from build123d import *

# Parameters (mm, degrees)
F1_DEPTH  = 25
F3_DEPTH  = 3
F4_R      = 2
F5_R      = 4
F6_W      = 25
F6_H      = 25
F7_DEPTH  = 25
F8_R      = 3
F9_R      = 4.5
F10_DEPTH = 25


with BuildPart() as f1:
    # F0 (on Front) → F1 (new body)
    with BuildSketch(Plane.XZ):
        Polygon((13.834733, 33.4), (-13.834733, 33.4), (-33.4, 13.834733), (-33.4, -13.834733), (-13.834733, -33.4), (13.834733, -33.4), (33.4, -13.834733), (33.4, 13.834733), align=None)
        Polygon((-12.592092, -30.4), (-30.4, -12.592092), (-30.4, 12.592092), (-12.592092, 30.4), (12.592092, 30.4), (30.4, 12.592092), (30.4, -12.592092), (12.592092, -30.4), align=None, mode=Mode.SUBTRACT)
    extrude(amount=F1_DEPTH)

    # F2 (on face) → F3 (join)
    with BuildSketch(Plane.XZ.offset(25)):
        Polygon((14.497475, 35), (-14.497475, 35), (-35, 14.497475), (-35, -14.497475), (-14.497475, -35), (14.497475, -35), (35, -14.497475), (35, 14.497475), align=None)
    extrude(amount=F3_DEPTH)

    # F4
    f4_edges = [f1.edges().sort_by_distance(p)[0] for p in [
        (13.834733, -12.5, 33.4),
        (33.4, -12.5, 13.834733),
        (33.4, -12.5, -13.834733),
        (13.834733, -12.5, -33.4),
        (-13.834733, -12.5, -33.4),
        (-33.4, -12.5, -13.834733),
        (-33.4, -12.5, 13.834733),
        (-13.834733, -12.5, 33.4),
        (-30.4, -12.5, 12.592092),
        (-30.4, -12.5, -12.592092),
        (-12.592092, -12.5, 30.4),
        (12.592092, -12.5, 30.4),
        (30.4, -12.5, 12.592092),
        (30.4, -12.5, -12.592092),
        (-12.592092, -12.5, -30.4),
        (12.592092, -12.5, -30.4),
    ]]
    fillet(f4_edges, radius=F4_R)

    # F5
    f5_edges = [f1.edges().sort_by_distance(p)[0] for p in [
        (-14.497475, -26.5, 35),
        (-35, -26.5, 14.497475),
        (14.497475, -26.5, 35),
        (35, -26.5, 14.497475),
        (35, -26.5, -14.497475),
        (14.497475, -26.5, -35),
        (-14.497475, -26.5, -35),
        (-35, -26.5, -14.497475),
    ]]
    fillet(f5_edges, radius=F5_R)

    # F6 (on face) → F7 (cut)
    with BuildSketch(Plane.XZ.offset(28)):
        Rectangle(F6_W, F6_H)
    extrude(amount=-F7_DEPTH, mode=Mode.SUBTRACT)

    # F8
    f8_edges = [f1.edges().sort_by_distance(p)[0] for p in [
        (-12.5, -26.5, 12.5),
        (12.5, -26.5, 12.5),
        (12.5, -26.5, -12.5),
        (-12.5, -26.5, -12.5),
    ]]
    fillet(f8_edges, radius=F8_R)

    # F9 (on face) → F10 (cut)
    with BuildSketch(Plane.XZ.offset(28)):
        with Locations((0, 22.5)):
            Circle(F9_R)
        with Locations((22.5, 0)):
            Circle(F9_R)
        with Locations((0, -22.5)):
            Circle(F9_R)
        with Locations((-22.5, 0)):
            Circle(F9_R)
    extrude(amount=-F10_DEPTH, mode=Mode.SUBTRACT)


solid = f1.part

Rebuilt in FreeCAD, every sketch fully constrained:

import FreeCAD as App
import Part
import Sketcher
Q = App.Units.Quantity


def edges_at(feature, points):
    """Names of the edges that pass closest to the given points."""
    edges = feature.Shape.Edges
    near = lambda p: min(range(len(edges)), key=lambda i: edges[i].distToShape(Part.Vertex(*p))[0])
    return sorted({f"Edge{near(p) + 1}" for p in points})

doc = App.newDocument("Part")
params = doc.addObject("Spreadsheet::Sheet", "Params")
for row, (alias, value) in enumerate([
    ("pad1_length", "25 mm"),
    ("pad2_length", "3 mm"),
    ("fillet_radius", "2 mm"),
    ("fillet2_radius", "4 mm"),
    ("sketch3_width", "25 mm"),
    ("pocket1_length", "25 mm"),
    ("fillet3_radius", "3 mm"),
    ("sketch4_diameter", "9 mm"),
    ("pocket2_length", "25 mm"),
], start=1):
    params.set(f"A{row}", alias)
    params.set(f"B{row}", "=" + value)
    params.setAlias(f"B{row}", alias)

body = doc.addObject("PartDesign::Body", "Body")

# Sketch on XZ plane
sketch1 = doc.addObject("Sketcher::SketchObject", "Sketch")
body.addObject(sketch1)
sketch1.AttachmentSupport = (doc.XZ_Plane, [""])
sketch1.MapMode = "FlatFace"
sketch1.addGeometry(Part.LineSegment(App.Vector(14, 33, 0), App.Vector(-14, 33, 0)), False)
sketch1.addGeometry(Part.LineSegment(App.Vector(-14, 33, 0), App.Vector(-33, 14, 0)), False)
sketch1.addGeometry(Part.LineSegment(App.Vector(-33, 14, 0), App.Vector(-33, -14, 0)), False)
sketch1.addGeometry(Part.LineSegment(App.Vector(-33, -14, 0), App.Vector(-14, -33, 0)), False)
sketch1.addGeometry(Part.LineSegment(App.Vector(-14, -33, 0), App.Vector(14, -33, 0)), False)
sketch1.addGeometry(Part.LineSegment(App.Vector(14, -33, 0), App.Vector(33, -14, 0)), False)
sketch1.addGeometry(Part.LineSegment(App.Vector(33, -14, 0), App.Vector(33, 14, 0)), False)
sketch1.addGeometry(Part.LineSegment(App.Vector(33, 14, 0), App.Vector(14, 33, 0)), False)
sketch1.addGeometry(Part.LineSegment(App.Vector(13, -30, 0), App.Vector(-13, -30, 0)), False)
sketch1.addGeometry(Part.LineSegment(App.Vector(-13, -30, 0), App.Vector(-30, -13, 0)), False)
sketch1.addGeometry(Part.LineSegment(App.Vector(-30, -13, 0), App.Vector(-30, 13, 0)), False)
sketch1.addGeometry(Part.LineSegment(App.Vector(-30, 13, 0), App.Vector(-13, 30, 0)), False)
sketch1.addGeometry(Part.LineSegment(App.Vector(-13, 30, 0), App.Vector(13, 30, 0)), False)
sketch1.addGeometry(Part.LineSegment(App.Vector(13, 30, 0), App.Vector(30, 13, 0)), False)
sketch1.addGeometry(Part.LineSegment(App.Vector(30, 13, 0), App.Vector(30, -13, 0)), False)
sketch1.addGeometry(Part.LineSegment(App.Vector(30, -13, 0), App.Vector(13, -30, 0)), False)
sketch1.addConstraint(Sketcher.Constraint("Coincident", 0, 2, 1, 1))
sketch1.addConstraint(Sketcher.Constraint("Coincident", 1, 2, 2, 1))
sketch1.addConstraint(Sketcher.Constraint("Coincident", 2, 2, 3, 1))
sketch1.addConstraint(Sketcher.Constraint("Coincident", 3, 2, 4, 1))
sketch1.addConstraint(Sketcher.Constraint("Coincident", 4, 2, 5, 1))
sketch1.addConstraint(Sketcher.Constraint("Coincident", 5, 2, 6, 1))
sketch1.addConstraint(Sketcher.Constraint("Coincident", 6, 2, 7, 1))
sketch1.addConstraint(Sketcher.Constraint("Coincident", 7, 2, 0, 1))
sketch1.addConstraint(Sketcher.Constraint("Coincident", 8, 2, 9, 1))
sketch1.addConstraint(Sketcher.Constraint("Coincident", 9, 2, 10, 1))
sketch1.addConstraint(Sketcher.Constraint("Coincident", 10, 2, 11, 1))
sketch1.addConstraint(Sketcher.Constraint("Coincident", 11, 2, 12, 1))
sketch1.addConstraint(Sketcher.Constraint("Coincident", 12, 2, 13, 1))
sketch1.addConstraint(Sketcher.Constraint("Coincident", 13, 2, 14, 1))
sketch1.addConstraint(Sketcher.Constraint("Coincident", 14, 2, 15, 1))
sketch1.addConstraint(Sketcher.Constraint("Coincident", 15, 2, 8, 1))
sketch1.addConstraint(Sketcher.Constraint("Horizontal", 0))
sketch1.addConstraint(Sketcher.Constraint("Vertical", 2))
sketch1.addConstraint(Sketcher.Constraint("Horizontal", 4))
sketch1.addConstraint(Sketcher.Constraint("Vertical", 6))
sketch1.addConstraint(Sketcher.Constraint("Horizontal", 8))
sketch1.addConstraint(Sketcher.Constraint("Vertical", 10))
sketch1.addConstraint(Sketcher.Constraint("Horizontal", 12))
sketch1.addConstraint(Sketcher.Constraint("Vertical", 14))
sketch1.addConstraint(Sketcher.Constraint("Symmetric", 0, 2, 4, 2, -1, 1))
sketch1.addConstraint(Sketcher.Constraint("Symmetric", 1, 2, 5, 2, -1, 1))
sketch1.addConstraint(Sketcher.Constraint("Symmetric", 8, 2, 12, 2, -1, 1))
sketch1.addConstraint(Sketcher.Constraint("Symmetric", 9, 2, 13, 2, -1, 1))
sketch1.addConstraint(Sketcher.Constraint("Perpendicular", 1, 3))
sketch1.addConstraint(Sketcher.Constraint("Perpendicular", 5, 7))
sketch1.addConstraint(Sketcher.Constraint("Parallel", 7, 9))
sketch1.addConstraint(Sketcher.Constraint("Perpendicular", 9, 11))
sketch1.addConstraint(Sketcher.Constraint("Perpendicular", 13, 15))
sketch1.addConstraint(Sketcher.Constraint("Horizontal", 2, 2, 5, 2))
sketch1.addConstraint(Sketcher.Constraint("Horizontal", 1, 2, 6, 2))
sketch1.addConstraint(Sketcher.Constraint("Horizontal", 10, 2, 13, 2))
sketch1.addConstraint(Sketcher.Constraint("Horizontal", 9, 2, 14, 2))
sketch1.addConstraint(Sketcher.Constraint("Vertical", 0, 2, 3, 2))
sketch1.addConstraint(Sketcher.Constraint("Equal", 4, 2))
sketch1.addConstraint(Sketcher.Constraint("Equal", 12, 10))
sketch1.addConstraint(Sketcher.Constraint("DistanceY", 3, 2, 8, 2, Q("3 mm")))
sketch1.addConstraint(Sketcher.Constraint("DistanceY", -1, 1, 0, 2, Q("33.4 mm")))
sketch1.addConstraint(Sketcher.Constraint("DistanceX", 0, 2, 0, 1, Q("27.669466 mm")))
sketch1.addConstraint(Sketcher.Constraint("DistanceX", 8, 2, 8, 1, Q("25.184184 mm")))
pad1 = doc.addObject("PartDesign::Pad", "Pad")
body.addObject(pad1)
pad1.Profile = sketch1
pad1.setExpression("Length", "Params.pad1_length")

# Sketch on XZ plane
sketch2 = doc.addObject("Sketcher::SketchObject", "Sketch001")
body.addObject(sketch2)
sketch2.AttachmentSupport = (doc.XZ_Plane, [""])
sketch2.MapMode = "FlatFace"
sketch2.AttachmentOffset = App.Placement(App.Vector(0, 0, 25), App.Rotation())
sketch2.addGeometry(Part.LineSegment(App.Vector(14, 35, 0), App.Vector(-14, 35, 0)), False)
sketch2.addGeometry(Part.LineSegment(App.Vector(-14, 35, 0), App.Vector(-35, 14, 0)), False)
sketch2.addGeometry(Part.LineSegment(App.Vector(-35, 14, 0), App.Vector(-35, -14, 0)), False)
sketch2.addGeometry(Part.LineSegment(App.Vector(-35, -14, 0), App.Vector(-14, -35, 0)), False)
sketch2.addGeometry(Part.LineSegment(App.Vector(-14, -35, 0), App.Vector(14, -35, 0)), False)
sketch2.addGeometry(Part.LineSegment(App.Vector(14, -35, 0), App.Vector(35, -14, 0)), False)
sketch2.addGeometry(Part.LineSegment(App.Vector(35, -14, 0), App.Vector(35, 14, 0)), False)
sketch2.addGeometry(Part.LineSegment(App.Vector(35, 14, 0), App.Vector(14, 35, 0)), False)
sketch2.addConstraint(Sketcher.Constraint("Coincident", 0, 2, 1, 1))
sketch2.addConstraint(Sketcher.Constraint("Coincident", 1, 2, 2, 1))
sketch2.addConstraint(Sketcher.Constraint("Coincident", 2, 2, 3, 1))
sketch2.addConstraint(Sketcher.Constraint("Coincident", 3, 2, 4, 1))
sketch2.addConstraint(Sketcher.Constraint("Coincident", 4, 2, 5, 1))
sketch2.addConstraint(Sketcher.Constraint("Coincident", 5, 2, 6, 1))
sketch2.addConstraint(Sketcher.Constraint("Coincident", 6, 2, 7, 1))
sketch2.addConstraint(Sketcher.Constraint("Coincident", 7, 2, 0, 1))
sketch2.addConstraint(Sketcher.Constraint("Horizontal", 0))
sketch2.addConstraint(Sketcher.Constraint("Vertical", 2))
sketch2.addConstraint(Sketcher.Constraint("Horizontal", 4))
sketch2.addConstraint(Sketcher.Constraint("Vertical", 6))
sketch2.addConstraint(Sketcher.Constraint("Symmetric", 0, 2, 4, 2, -1, 1))
sketch2.addConstraint(Sketcher.Constraint("Symmetric", 1, 2, 5, 2, -1, 1))
sketch2.addConstraint(Sketcher.Constraint("Perpendicular", 1, 3))
sketch2.addConstraint(Sketcher.Constraint("Perpendicular", 5, 7))
sketch2.addConstraint(Sketcher.Constraint("Horizontal", 2, 2, 5, 2))
sketch2.addConstraint(Sketcher.Constraint("Horizontal", 1, 2, 6, 2))
sketch2.addConstraint(Sketcher.Constraint("Vertical", 0, 2, 3, 2))
sketch2.addConstraint(Sketcher.Constraint("Equal", 4, 2))
sketch2.addConstraint(Sketcher.Constraint("DistanceY", -1, 1, 0, 2, Q("35 mm")))
sketch2.addConstraint(Sketcher.Constraint("DistanceX", 0, 2, 0, 1, Q("28.99495 mm")))
pad2 = doc.addObject("PartDesign::Pad", "Pad001")
body.addObject(pad2)
pad2.Profile = sketch2
pad2.setExpression("Length", "Params.pad2_length")
doc.recompute()

fillet = doc.addObject("PartDesign::Fillet", "Fillet")
body.addObject(fillet)
fillet.Base = (pad2, edges_at(pad2, [
    (13.835, -12.5, 33.4),
    (33.4, -12.5, 13.835),
    (33.4, -12.5, -13.835),
    (13.835, -12.5, -33.4),
    (-13.835, -12.5, -33.4),
    (-33.4, -12.5, -13.835),
    (-33.4, -12.5, 13.835),
    (-13.835, -12.5, 33.4),
    (-30.4, -12.5, 12.592),
    (-30.4, -12.5, -12.592),
    (-12.592, -12.5, 30.4),
    (12.592, -12.5, 30.4),
    (30.4, -12.5, 12.592),
    (30.4, -12.5, -12.592),
    (-12.592, -12.5, -30.4),
    (12.592, -12.5, -30.4),
]))
fillet.setExpression("Radius", "Params.fillet_radius")
doc.recompute()

fillet2 = doc.addObject("PartDesign::Fillet", "Fillet001")
body.addObject(fillet2)
fillet2.Base = (fillet, edges_at(fillet, [
    (-14.497, -26.5, 35),
    (-35, -26.5, 14.497),
    (14.497, -26.5, 35),
    (35, -26.5, 14.497),
    (35, -26.5, -14.497),
    (14.497, -26.5, -35),
    (-14.497, -26.5, -35),
    (-35, -26.5, -14.497),
]))
fillet2.setExpression("Radius", "Params.fillet2_radius")

# Sketch on XZ plane
sketch3 = doc.addObject("Sketcher::SketchObject", "Sketch002")
body.addObject(sketch3)
sketch3.AttachmentSupport = (doc.XZ_Plane, [""])
sketch3.MapMode = "FlatFace"
sketch3.AttachmentOffset = App.Placement(App.Vector(0, 0, 28), App.Rotation())
sketch3.addGeometry(Part.LineSegment(App.Vector(-12, 12, 0), App.Vector(-12, -12, 0)), False)
sketch3.addGeometry(Part.LineSegment(App.Vector(-12, -12, 0), App.Vector(12, -12, 0)), False)
sketch3.addGeometry(Part.LineSegment(App.Vector(12, -12, 0), App.Vector(12, 12, 0)), False)
sketch3.addGeometry(Part.LineSegment(App.Vector(12, 12, 0), App.Vector(-12, 12, 0)), False)
sketch3.addConstraint(Sketcher.Constraint("Coincident", 0, 2, 1, 1))
sketch3.addConstraint(Sketcher.Constraint("Coincident", 1, 2, 2, 1))
sketch3.addConstraint(Sketcher.Constraint("Coincident", 2, 2, 3, 1))
sketch3.addConstraint(Sketcher.Constraint("Coincident", 3, 2, 0, 1))
sketch3.addConstraint(Sketcher.Constraint("Vertical", 0))
sketch3.addConstraint(Sketcher.Constraint("Horizontal", 1))
sketch3.addConstraint(Sketcher.Constraint("Vertical", 2))
sketch3.addConstraint(Sketcher.Constraint("Horizontal", 3))
sketch3.addConstraint(Sketcher.Constraint("Symmetric", 0, 2, 2, 2, -1, 1))
sketch3.addConstraint(Sketcher.Constraint("Equal", 3, 0))
sketch3.addConstraint(Sketcher.Constraint("DistanceX", 1, 1, 1, 2, Q("25 mm")))
sketch3.setExpression("Constraints[10]", "Params.sketch3_width")
pocket1 = doc.addObject("PartDesign::Pocket", "Pocket")
body.addObject(pocket1)
pocket1.Profile = sketch3
pocket1.setExpression("Length", "Params.pocket1_length")
doc.recompute()

fillet3 = doc.addObject("PartDesign::Fillet", "Fillet002")
body.addObject(fillet3)
fillet3.Base = (pocket1, edges_at(pocket1, [
    (-12.5, -26.5, 12.5),
    (12.5, -26.5, 12.5),
    (12.5, -26.5, -12.5),
    (-12.5, -26.5, -12.5),
]))
fillet3.setExpression("Radius", "Params.fillet3_radius")

# Sketch on XZ plane
sketch4 = doc.addObject("Sketcher::SketchObject", "Sketch003")
body.addObject(sketch4)
sketch4.AttachmentSupport = (doc.XZ_Plane, [""])
sketch4.MapMode = "FlatFace"
sketch4.AttachmentOffset = App.Placement(App.Vector(0, 0, 28), App.Rotation())
sketch4.addGeometry(Part.Circle(App.Vector(0, 22.5, 0), App.Vector(0, 0, 1), 4.5), False)
sketch4.addGeometry(Part.Circle(App.Vector(22.5, 0, 0), App.Vector(0, 0, 1), 4.5), False)
sketch4.addGeometry(Part.Circle(App.Vector(0, -22.5, 0), App.Vector(0, 0, 1), 4.5), False)
sketch4.addGeometry(Part.Circle(App.Vector(-22.5, 0, 0), App.Vector(0, 0, 1), 4.5), False)
sketch4.addConstraint(Sketcher.Constraint("Equal", 0, 1))
sketch4.addConstraint(Sketcher.Constraint("Equal", 1, 2))
sketch4.addConstraint(Sketcher.Constraint("Equal", 2, 3))
sketch4.addConstraint(Sketcher.Constraint("Symmetric", 0, 3, 2, 3, -1, 1))
sketch4.addConstraint(Sketcher.Constraint("Symmetric", 1, 3, 3, 3, -1, 1))
sketch4.addConstraint(Sketcher.Constraint("PointOnObject", 0, 3, -2))
sketch4.addConstraint(Sketcher.Constraint("PointOnObject", 1, 3, -1))
sketch4.addConstraint(Sketcher.Constraint("Diameter", 0, Q("9 mm")))
sketch4.addConstraint(Sketcher.Constraint("DistanceY", 2, 3, 0, 3, Q("45 mm")))
sketch4.addConstraint(Sketcher.Constraint("DistanceX", 3, 3, 1, 3, Q("45 mm")))
sketch4.setExpression("Constraints[7]", "Params.sketch4_diameter")
pocket2 = doc.addObject("PartDesign::Pocket", "Pocket001")
body.addObject(pocket2)
pocket2.Profile = sketch4
pocket2.setExpression("Length", "Params.pocket2_length")

doc.recompute()
